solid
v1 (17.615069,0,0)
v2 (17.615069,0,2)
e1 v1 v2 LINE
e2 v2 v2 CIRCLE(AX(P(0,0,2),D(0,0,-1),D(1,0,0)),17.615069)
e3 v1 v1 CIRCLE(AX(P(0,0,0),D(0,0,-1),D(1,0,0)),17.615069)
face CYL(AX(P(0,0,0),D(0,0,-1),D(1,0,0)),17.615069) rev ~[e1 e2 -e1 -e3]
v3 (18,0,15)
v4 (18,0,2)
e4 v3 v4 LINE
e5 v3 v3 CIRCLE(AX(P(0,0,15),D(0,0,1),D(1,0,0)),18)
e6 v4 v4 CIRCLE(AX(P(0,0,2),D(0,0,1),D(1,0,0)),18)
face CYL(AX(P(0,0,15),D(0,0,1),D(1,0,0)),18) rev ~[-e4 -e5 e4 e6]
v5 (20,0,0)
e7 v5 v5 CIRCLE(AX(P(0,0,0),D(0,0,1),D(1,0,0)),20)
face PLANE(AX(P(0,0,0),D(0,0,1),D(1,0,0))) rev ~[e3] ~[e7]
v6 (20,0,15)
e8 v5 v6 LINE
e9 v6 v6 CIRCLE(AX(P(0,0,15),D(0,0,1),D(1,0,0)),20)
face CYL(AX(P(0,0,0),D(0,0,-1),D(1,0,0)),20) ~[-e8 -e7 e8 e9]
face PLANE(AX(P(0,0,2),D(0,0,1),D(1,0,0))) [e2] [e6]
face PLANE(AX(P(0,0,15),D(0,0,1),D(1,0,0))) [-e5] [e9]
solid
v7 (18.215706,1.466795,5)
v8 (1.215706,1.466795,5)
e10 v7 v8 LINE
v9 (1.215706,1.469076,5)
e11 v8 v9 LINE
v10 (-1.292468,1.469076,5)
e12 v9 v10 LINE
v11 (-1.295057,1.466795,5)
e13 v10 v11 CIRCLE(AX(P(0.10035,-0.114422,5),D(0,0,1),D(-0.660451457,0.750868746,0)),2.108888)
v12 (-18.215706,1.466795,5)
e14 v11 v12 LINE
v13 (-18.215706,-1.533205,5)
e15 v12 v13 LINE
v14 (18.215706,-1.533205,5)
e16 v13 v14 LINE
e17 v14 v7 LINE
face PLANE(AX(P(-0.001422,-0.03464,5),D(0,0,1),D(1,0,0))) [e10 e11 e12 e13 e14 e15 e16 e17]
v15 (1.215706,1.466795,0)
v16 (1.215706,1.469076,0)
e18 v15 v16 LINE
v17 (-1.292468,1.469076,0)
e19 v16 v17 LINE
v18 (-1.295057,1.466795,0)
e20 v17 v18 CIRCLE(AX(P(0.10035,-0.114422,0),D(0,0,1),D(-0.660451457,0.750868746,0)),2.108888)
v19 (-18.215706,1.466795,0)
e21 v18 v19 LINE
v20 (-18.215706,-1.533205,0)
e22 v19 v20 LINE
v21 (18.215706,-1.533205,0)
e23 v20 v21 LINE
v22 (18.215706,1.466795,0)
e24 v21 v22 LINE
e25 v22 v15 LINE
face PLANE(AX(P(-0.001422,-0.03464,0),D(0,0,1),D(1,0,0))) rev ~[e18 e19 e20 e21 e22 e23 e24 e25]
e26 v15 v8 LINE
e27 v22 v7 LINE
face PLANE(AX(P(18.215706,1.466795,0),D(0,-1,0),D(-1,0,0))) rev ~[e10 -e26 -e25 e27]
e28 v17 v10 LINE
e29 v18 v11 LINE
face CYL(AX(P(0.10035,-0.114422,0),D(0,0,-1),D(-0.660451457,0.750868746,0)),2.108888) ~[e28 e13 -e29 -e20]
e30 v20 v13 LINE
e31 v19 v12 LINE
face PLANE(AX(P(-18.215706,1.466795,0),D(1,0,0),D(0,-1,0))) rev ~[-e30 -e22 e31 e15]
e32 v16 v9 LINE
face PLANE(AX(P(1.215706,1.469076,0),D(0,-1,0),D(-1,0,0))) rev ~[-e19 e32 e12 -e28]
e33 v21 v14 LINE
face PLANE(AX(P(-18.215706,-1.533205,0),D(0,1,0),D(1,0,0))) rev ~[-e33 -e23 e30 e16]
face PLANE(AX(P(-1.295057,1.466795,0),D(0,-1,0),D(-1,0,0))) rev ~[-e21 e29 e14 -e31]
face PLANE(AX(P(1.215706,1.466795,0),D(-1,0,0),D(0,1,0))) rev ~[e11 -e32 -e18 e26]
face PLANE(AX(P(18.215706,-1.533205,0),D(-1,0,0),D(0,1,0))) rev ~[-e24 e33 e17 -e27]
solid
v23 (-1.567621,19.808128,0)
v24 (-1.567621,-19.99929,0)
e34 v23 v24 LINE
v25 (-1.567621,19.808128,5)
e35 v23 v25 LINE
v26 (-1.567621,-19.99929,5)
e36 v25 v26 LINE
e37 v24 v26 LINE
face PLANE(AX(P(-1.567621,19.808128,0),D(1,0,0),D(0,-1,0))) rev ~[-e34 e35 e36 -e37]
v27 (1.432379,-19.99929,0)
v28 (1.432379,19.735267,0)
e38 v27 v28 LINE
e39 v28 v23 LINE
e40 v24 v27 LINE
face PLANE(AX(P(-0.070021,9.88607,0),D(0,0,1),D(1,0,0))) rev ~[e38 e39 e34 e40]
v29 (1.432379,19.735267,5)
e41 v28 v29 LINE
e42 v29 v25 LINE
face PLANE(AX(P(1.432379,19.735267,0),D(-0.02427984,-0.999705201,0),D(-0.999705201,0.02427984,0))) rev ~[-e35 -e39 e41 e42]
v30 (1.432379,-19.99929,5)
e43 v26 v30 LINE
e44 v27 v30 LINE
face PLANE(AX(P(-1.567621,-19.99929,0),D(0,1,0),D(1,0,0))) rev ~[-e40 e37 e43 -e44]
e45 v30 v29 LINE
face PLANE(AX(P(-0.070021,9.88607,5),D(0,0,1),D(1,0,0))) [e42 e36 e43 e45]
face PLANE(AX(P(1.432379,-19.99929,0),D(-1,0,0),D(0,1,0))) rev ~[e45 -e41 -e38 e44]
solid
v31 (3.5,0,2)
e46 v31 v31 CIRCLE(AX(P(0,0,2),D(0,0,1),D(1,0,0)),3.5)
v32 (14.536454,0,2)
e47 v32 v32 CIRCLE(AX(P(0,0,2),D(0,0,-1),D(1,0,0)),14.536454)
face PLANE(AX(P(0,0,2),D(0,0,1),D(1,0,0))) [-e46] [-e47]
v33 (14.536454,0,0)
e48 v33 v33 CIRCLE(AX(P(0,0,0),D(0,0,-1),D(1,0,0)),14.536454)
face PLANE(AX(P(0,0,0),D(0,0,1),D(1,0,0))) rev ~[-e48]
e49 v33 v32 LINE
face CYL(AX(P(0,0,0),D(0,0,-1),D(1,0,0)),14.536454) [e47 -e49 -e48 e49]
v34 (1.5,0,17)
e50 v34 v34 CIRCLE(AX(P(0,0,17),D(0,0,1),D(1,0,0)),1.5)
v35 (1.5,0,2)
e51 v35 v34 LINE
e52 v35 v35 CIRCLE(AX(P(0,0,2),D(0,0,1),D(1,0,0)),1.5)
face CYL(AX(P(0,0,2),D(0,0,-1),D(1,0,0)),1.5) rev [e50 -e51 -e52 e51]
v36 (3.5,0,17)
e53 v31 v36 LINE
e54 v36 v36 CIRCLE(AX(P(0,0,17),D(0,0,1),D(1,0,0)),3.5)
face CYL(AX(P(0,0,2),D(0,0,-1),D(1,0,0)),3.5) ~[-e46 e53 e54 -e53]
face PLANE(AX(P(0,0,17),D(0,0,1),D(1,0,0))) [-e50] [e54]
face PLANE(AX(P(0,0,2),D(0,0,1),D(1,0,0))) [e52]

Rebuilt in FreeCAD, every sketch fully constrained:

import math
import FreeCAD as App
import Part
import Sketcher

V = App.Vector

doc = App.newDocument("Part")
body = doc.addObject("PartDesign::Body", "Body")
body.AllowCompound = True

# Sketch on XY plane
sketch1 = body.newObject("Sketcher::SketchObject", "Sketch")
sketch1.AttachmentSupport = (doc.getObject("XY_Plane"), [""])
sketch1.MapMode = "FlatFace"
sketch1.addGeometry(Part.Circle(V(0, 0, 0), V(0, 0, 1), 20), False)
sketch1.addConstraint(Sketcher.Constraint("Coincident", 0, 3, -1, 1))
sketch1.addConstraint(Sketcher.Constraint("Diameter", 0, 40.0))
pad1 = body.newObject("PartDesign::Pad", "Pad")
pad1.Profile = sketch1
pad1.Length = 15

# Sketch on XY plane
sketch2 = body.newObject("Sketcher::SketchObject", "Sketch001")
sketch2.AttachmentSupport = (doc.getObject("XY_Plane"), [""])
sketch2.MapMode = "FlatFace"
sketch2.AttachmentOffset = App.Placement(V(0, 0, 15), App.Rotation())
sketch2.addGeometry(Part.Circle(V(0, 0, 0), V(0, 0, 1), 18), False)
sketch2.addConstraint(Sketcher.Constraint("Coincident", 0, 3, -1, 1))
sketch2.addConstraint(Sketcher.Constraint("Diameter", 0, 36.0))
pocket1 = body.newObject("PartDesign::Pocket", "Pocket")
pocket1.Profile = sketch2
pocket1.Length = 13

# Sketch on XY plane
sketch3 = body.newObject("Sketcher::SketchObject", "Sketch002")
sketch3.AttachmentSupport = (doc.getObject("XY_Plane"), [""])
sketch3.MapMode = "FlatFace"
sketch3.AttachmentOffset = App.Placement(V(0, 0, 2), App.Rotation())
sketch3.addGeometry(Part.Circle(V(0, 0, 0), V(0, 0, 1), 3.5), False)
sketch3.addGeometry(Part.Circle(V(0, 0, 0), V(0, 0, 1), 1.5), False)
sketch3.addConstraint(Sketcher.Constraint("Coincident", 0, 3, -1, 1))
sketch3.addConstraint(Sketcher.Constraint("Coincident", 1, 3, -1, 1))
sketch3.addConstraint(Sketcher.Constraint("Diameter", 0, 7.0))
sketch3.addConstraint(Sketcher.Constraint("Diameter", 1, 3.0))
pad2 = body.newObject("PartDesign::Pad", "Pad001")
pad2.Profile = sketch3
pad2.Length = 15

# Sketch on XY plane
sketch4 = body.newObject("Sketcher::SketchObject", "Sketch003")
sketch4.AttachmentSupport = (doc.getObject("XY_Plane"), [""])
sketch4.MapMode = "FlatFace"
sketch4.addGeometry(Part.Circle(V(0, 0, 0), V(0, 0, 1), 18), False)
sketch4.addGeometry(Part.Circle(V(0, 0, 0), V(0, 0, 1), 15), False)
sketch4.addConstraint(Sketcher.Constraint("Coincident", 0, 3, -1, 1))
sketch4.addConstraint(Sketcher.Constraint("Coincident", 1, 3, -1, 1))
sketch4.addConstraint(Sketcher.Constraint("Diameter", 1, 29.072908))
sketch4.addConstraint(Sketcher.Constraint("Diameter", 0, 35.230138))
pocket2 = body.newObject("PartDesign::Pocket", "Pocket001")
pocket2.Profile = sketch4
pocket2.Length = 25
pocket2.Reversed = True

# Sketch on XY plane
sketch5 = body.newObject("Sketcher::SketchObject", "Sketch004")
sketch5.AttachmentSupport = (doc.getObject("XY_Plane"), [""])
sketch5.MapMode = "FlatFace"
sketch5.addGeometry(Part.Circle(V(0, 0, 0), V(0, 0, 1), 18), False)
sketch5.addGeometry(Part.Circle(V(0, 0, 0), V(0, 0, 1), 15), False)
sketch5.addConstraint(Sketcher.Constraint("Coincident", 0, 3, -1, 1))
sketch5.addConstraint(Sketcher.Constraint("Coincident", 1, 3, -1, 1))
sketch5.addConstraint(Sketcher.Constraint("Diameter", 1, 29.072908))
sketch5.addConstraint(Sketcher.Constraint("Diameter", 0, 35.230138))
pocket3 = body.newObject("PartDesign::Pocket", "Pocket002")
pocket3.Profile = sketch5
pocket3.Length = 25
pocket3.Reversed = True
body2 = doc.addObject("PartDesign::Body", "Body001")

# Sketch on XY plane
sketch6 = body2.newObject("Sketcher::SketchObject", "Sketch005")
sketch6.AttachmentSupport = (doc.getObject("XY_Plane001"), [""])
sketch6.MapMode = "FlatFace"
sketch6.addGeometry(Part.LineSegment(V(-1.6, 19.8, 0), V(-1.6, -20, 0)), False)
sketch6.addGeometry(Part.LineSegment(V(-1.6, -20, 0), V(1.4, -20, 0)), False)
sketch6.addGeometry(Part.LineSegment(V(1.4, -20, 0), V(1.4, 19.7, 0)), False)
sketch6.addGeometry(Part.LineSegment(V(1.4, 19.7, 0), V(-1.6, 19.8, 0)), False)
sketch6.addConstraint(Sketcher.Constraint("Coincident", 0, 2, 1, 1))
sketch6.addConstraint(Sketcher.Constraint("Coincident", 1, 2, 2, 1))
sketch6.addConstraint(Sketcher.Constraint("Coincident", 2, 2, 3, 1))
sketch6.addConstraint(Sketcher.Constraint("Coincident", 3, 2, 0, 1))
sketch6.addConstraint(Sketcher.Constraint("Vertical", 0))
sketch6.addConstraint(Sketcher.Constraint("Horizontal", 1))
sketch6.addConstraint(Sketcher.Constraint("Vertical", 2))
sketch6.addConstraint(Sketcher.Constraint("DistanceX", 1, 1, 1, 2, 3.0))
sketch6.addConstraint(Sketcher.Constraint("DistanceY", 0, 2, 0, 1, 39.807418))
sketch6.addConstraint(Sketcher.Constraint("DistanceY", 2, 1, 2, 2, 39.734557))
sketch6.addConstraint(Sketcher.Constraint("DistanceX", 0, 2, -1, 1, 1.567621))
sketch6.addConstraint(Sketcher.Constraint("DistanceY", 0, 2, -1, 1, 19.99929))
pad3 = body2.newObject("PartDesign::Pad", "Pad002")
pad3.Profile = sketch6
pad3.Length = 5
body3 = doc.addObject("PartDesign::Body", "Body002")

# Sketch on XY plane
sketch7 = body3.newObject("Sketcher::SketchObject", "Sketch006")
sketch7.AttachmentSupport = (doc.getObject("XY_Plane002"), [""])
sketch7.MapMode = "FlatFace"
sketch7.addGeometry(Part.LineSegment(V(18.2157, -1.5332, 0), V(18.2157, 1.4668, 0)), False)
sketch7.addGeometry(Part.LineSegment(V(18.2157, 1.4668, 0), V(1.2157, 1.4668, 0)), False)
sketch7.addGeometry(Part.LineSegment(V(1.2157, 1.4668, 0), V(1.2157, 1.4691, 0)), False)
sketch7.addGeometry(Part.LineSegment(V(1.2157, 1.4691, 0), V(-1.2925, 1.4691, 0)), False)
sketch7.addGeometry(Part.ArcOfCircle(Part.Circle(V(0.1004, -0.1144, 0), V(0, 0, 1), 2.1089), math.radians(131.33), math.radians(131.43)), False)
sketch7.addGeometry(Part.LineSegment(V(-1.2951, 1.4668, 0), V(-18.2157, 1.4668, 0)), False)
sketch7.addGeometry(Part.LineSegment(V(-18.2157, 1.4668, 0), V(-18.2157, -1.5332, 0)), False)
sketch7.addGeometry(Part.LineSegment(V(-18.2157, -1.5332, 0), V(18.2157, -1.5332, 0)), False)
sketch7.addConstraint(Sketcher.Constraint("Coincident", 0, 2, 1, 1))
sketch7.addConstraint(Sketcher.Constraint("Coincident", 1, 2, 2, 1))
sketch7.addConstraint(Sketcher.Constraint("Coincident", 2, 2, 3, 1))
sketch7.addConstraint(Sketcher.Constraint("Coincident", 3, 2, 4, 1))
sketch7.addConstraint(Sketcher.Constraint("Coincident", 4, 2, 5, 1))
sketch7.addConstraint(Sketcher.Constraint("Coincident", 5, 2, 6, 1))
sketch7.addConstraint(Sketcher.Constraint("Coincident", 6, 2, 7, 1))
sketch7.addConstraint(Sketcher.Constraint("Coincident", 7, 2, 0, 1))
sketch7.addConstraint(Sketcher.Constraint("Vertical", 0))
sketch7.addConstraint(Sketcher.Constraint("Horizontal", 1))
sketch7.addConstraint(Sketcher.Constraint("Vertical", 2))
sketch7.addConstraint(Sketcher.Constraint("Horizontal", 3))
sketch7.addConstraint(Sketcher.Constraint("Horizontal", 5))
sketch7.addConstraint(Sketcher.Constraint("Vertical", 6))
sketch7.addConstraint(Sketcher.Constraint("Horizontal", 7))
sketch7.addConstraint(Sketcher.Constraint("Symmetric", 0, 2, 5, 2, -2))
sketch7.addConstraint(Sketcher.Constraint("DistanceX", 1, 2, 1, 1, 17.0))
sketch7.addConstraint(Sketcher.Constraint("DistanceY", 0, 1, 0, 2, 3.0))
sketch7.addConstraint(Sketcher.Constraint("Radius", 4, 2.108888))
sketch7.addConstraint(Sketcher.Constraint("DistanceX", 5, 2, 5, 1, 16.920649))
sketch7.addConstraint(Sketcher.Constraint("DistanceY", 2, 1, 2, 2, 0.002281))
sketch7.addConstraint(Sketcher.Constraint("DistanceX", 3, 2, 3, 1, 2.508174))
sketch7.addConstraint(Sketcher.Constraint("DistanceX", -1, 1, 4, 3, 0.10035))
sketch7.addConstraint(Sketcher.Constraint("DistanceY", 4, 3, -1, 1, 0.114422))
pad4 = body3.newObject("PartDesign::Pad", "Pad003")
pad4.Profile = sketch7
pad4.Length = 5

doc.recompute()
